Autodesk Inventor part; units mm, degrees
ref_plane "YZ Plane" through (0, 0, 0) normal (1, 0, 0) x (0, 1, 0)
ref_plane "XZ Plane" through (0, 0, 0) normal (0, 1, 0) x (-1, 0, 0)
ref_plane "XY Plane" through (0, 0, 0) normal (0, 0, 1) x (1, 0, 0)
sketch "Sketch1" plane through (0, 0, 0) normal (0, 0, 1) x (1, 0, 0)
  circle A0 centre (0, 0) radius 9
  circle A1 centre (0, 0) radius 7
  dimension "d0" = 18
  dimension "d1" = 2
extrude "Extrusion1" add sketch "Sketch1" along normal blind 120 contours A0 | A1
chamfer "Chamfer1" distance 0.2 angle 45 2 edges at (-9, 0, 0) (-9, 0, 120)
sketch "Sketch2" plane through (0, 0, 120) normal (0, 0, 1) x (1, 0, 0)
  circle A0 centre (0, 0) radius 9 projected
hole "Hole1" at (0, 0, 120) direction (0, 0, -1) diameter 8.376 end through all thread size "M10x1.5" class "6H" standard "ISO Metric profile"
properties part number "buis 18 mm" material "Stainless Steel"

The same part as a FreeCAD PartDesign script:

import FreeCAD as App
import Part
import Sketcher
from FreeCAD import Vector
Q = App.Units.Quantity


def edges_at(feature, points):
    """Names of the edges that pass closest to the given points."""
    edges = feature.Shape.Edges
    near = lambda p: min(range(len(edges)), key=lambda i: edges[i].distToShape(Part.Vertex(*p))[0])
    return sorted({f"Edge{near(p) + 1}" for p in points})

doc = App.newDocument("Part")
body = doc.addObject("PartDesign::Body", "Body")

# Sketch on XY plane
sketch1 = doc.addObject("Sketcher::SketchObject", "Sketch")
body.addObject(sketch1)
sketch1.AttachmentSupport = (doc.XY_Plane, [""])
sketch1.MapMode = "FlatFace"
sketch1.addGeometry(Part.Circle(Vector(0, 0, 0), Vector(0, 0, 1), 9), False)
sketch1.addConstraint([
    Sketcher.Constraint("Coincident", 0, 3, -1, 1),
    Sketcher.Constraint("Diameter", 0, Q("18 mm")),
])
pad1 = doc.addObject("PartDesign::Pad", "Pad")
body.addObject(pad1)
pad1.Profile = sketch1
pad1.Length = 120
doc.recompute()

chamfer = doc.addObject("PartDesign::Chamfer", "Chamfer")
body.addObject(chamfer)
chamfer.Base = (pad1, edges_at(pad1, [(-9, 0, 0), (-9, 0, 120)]))
chamfer.Size = 0.2

# Sketch on XY plane
sketch2 = doc.addObject("Sketcher::SketchObject", "Sketch001")
body.addObject(sketch2)
sketch2.AttachmentSupport = (doc.XY_Plane, [""])
sketch2.MapMode = "FlatFace"
sketch2.AttachmentOffset = App.Placement(Vector(0, 0, 120), App.Rotation())
sketch2.addGeometry(Part.Circle(Vector(0, 0, 0), Vector(0, 0, 1), 4.188), False)
sketch2.addConstraint([
    Sketcher.Constraint("Coincident", 0, 3, -1, 1),
    Sketcher.Constraint("Diameter", 0, Q("8.376 mm")),
])
doc.recompute()
hole = doc.addObject("PartDesign::Hole", "Hole")
body.addObject(hole)
hole.Profile = sketch2
hole.ThreadType = "None"
hole.Diameter = 8.376
hole.DepthType = "ThroughAll"

doc.recompute()
